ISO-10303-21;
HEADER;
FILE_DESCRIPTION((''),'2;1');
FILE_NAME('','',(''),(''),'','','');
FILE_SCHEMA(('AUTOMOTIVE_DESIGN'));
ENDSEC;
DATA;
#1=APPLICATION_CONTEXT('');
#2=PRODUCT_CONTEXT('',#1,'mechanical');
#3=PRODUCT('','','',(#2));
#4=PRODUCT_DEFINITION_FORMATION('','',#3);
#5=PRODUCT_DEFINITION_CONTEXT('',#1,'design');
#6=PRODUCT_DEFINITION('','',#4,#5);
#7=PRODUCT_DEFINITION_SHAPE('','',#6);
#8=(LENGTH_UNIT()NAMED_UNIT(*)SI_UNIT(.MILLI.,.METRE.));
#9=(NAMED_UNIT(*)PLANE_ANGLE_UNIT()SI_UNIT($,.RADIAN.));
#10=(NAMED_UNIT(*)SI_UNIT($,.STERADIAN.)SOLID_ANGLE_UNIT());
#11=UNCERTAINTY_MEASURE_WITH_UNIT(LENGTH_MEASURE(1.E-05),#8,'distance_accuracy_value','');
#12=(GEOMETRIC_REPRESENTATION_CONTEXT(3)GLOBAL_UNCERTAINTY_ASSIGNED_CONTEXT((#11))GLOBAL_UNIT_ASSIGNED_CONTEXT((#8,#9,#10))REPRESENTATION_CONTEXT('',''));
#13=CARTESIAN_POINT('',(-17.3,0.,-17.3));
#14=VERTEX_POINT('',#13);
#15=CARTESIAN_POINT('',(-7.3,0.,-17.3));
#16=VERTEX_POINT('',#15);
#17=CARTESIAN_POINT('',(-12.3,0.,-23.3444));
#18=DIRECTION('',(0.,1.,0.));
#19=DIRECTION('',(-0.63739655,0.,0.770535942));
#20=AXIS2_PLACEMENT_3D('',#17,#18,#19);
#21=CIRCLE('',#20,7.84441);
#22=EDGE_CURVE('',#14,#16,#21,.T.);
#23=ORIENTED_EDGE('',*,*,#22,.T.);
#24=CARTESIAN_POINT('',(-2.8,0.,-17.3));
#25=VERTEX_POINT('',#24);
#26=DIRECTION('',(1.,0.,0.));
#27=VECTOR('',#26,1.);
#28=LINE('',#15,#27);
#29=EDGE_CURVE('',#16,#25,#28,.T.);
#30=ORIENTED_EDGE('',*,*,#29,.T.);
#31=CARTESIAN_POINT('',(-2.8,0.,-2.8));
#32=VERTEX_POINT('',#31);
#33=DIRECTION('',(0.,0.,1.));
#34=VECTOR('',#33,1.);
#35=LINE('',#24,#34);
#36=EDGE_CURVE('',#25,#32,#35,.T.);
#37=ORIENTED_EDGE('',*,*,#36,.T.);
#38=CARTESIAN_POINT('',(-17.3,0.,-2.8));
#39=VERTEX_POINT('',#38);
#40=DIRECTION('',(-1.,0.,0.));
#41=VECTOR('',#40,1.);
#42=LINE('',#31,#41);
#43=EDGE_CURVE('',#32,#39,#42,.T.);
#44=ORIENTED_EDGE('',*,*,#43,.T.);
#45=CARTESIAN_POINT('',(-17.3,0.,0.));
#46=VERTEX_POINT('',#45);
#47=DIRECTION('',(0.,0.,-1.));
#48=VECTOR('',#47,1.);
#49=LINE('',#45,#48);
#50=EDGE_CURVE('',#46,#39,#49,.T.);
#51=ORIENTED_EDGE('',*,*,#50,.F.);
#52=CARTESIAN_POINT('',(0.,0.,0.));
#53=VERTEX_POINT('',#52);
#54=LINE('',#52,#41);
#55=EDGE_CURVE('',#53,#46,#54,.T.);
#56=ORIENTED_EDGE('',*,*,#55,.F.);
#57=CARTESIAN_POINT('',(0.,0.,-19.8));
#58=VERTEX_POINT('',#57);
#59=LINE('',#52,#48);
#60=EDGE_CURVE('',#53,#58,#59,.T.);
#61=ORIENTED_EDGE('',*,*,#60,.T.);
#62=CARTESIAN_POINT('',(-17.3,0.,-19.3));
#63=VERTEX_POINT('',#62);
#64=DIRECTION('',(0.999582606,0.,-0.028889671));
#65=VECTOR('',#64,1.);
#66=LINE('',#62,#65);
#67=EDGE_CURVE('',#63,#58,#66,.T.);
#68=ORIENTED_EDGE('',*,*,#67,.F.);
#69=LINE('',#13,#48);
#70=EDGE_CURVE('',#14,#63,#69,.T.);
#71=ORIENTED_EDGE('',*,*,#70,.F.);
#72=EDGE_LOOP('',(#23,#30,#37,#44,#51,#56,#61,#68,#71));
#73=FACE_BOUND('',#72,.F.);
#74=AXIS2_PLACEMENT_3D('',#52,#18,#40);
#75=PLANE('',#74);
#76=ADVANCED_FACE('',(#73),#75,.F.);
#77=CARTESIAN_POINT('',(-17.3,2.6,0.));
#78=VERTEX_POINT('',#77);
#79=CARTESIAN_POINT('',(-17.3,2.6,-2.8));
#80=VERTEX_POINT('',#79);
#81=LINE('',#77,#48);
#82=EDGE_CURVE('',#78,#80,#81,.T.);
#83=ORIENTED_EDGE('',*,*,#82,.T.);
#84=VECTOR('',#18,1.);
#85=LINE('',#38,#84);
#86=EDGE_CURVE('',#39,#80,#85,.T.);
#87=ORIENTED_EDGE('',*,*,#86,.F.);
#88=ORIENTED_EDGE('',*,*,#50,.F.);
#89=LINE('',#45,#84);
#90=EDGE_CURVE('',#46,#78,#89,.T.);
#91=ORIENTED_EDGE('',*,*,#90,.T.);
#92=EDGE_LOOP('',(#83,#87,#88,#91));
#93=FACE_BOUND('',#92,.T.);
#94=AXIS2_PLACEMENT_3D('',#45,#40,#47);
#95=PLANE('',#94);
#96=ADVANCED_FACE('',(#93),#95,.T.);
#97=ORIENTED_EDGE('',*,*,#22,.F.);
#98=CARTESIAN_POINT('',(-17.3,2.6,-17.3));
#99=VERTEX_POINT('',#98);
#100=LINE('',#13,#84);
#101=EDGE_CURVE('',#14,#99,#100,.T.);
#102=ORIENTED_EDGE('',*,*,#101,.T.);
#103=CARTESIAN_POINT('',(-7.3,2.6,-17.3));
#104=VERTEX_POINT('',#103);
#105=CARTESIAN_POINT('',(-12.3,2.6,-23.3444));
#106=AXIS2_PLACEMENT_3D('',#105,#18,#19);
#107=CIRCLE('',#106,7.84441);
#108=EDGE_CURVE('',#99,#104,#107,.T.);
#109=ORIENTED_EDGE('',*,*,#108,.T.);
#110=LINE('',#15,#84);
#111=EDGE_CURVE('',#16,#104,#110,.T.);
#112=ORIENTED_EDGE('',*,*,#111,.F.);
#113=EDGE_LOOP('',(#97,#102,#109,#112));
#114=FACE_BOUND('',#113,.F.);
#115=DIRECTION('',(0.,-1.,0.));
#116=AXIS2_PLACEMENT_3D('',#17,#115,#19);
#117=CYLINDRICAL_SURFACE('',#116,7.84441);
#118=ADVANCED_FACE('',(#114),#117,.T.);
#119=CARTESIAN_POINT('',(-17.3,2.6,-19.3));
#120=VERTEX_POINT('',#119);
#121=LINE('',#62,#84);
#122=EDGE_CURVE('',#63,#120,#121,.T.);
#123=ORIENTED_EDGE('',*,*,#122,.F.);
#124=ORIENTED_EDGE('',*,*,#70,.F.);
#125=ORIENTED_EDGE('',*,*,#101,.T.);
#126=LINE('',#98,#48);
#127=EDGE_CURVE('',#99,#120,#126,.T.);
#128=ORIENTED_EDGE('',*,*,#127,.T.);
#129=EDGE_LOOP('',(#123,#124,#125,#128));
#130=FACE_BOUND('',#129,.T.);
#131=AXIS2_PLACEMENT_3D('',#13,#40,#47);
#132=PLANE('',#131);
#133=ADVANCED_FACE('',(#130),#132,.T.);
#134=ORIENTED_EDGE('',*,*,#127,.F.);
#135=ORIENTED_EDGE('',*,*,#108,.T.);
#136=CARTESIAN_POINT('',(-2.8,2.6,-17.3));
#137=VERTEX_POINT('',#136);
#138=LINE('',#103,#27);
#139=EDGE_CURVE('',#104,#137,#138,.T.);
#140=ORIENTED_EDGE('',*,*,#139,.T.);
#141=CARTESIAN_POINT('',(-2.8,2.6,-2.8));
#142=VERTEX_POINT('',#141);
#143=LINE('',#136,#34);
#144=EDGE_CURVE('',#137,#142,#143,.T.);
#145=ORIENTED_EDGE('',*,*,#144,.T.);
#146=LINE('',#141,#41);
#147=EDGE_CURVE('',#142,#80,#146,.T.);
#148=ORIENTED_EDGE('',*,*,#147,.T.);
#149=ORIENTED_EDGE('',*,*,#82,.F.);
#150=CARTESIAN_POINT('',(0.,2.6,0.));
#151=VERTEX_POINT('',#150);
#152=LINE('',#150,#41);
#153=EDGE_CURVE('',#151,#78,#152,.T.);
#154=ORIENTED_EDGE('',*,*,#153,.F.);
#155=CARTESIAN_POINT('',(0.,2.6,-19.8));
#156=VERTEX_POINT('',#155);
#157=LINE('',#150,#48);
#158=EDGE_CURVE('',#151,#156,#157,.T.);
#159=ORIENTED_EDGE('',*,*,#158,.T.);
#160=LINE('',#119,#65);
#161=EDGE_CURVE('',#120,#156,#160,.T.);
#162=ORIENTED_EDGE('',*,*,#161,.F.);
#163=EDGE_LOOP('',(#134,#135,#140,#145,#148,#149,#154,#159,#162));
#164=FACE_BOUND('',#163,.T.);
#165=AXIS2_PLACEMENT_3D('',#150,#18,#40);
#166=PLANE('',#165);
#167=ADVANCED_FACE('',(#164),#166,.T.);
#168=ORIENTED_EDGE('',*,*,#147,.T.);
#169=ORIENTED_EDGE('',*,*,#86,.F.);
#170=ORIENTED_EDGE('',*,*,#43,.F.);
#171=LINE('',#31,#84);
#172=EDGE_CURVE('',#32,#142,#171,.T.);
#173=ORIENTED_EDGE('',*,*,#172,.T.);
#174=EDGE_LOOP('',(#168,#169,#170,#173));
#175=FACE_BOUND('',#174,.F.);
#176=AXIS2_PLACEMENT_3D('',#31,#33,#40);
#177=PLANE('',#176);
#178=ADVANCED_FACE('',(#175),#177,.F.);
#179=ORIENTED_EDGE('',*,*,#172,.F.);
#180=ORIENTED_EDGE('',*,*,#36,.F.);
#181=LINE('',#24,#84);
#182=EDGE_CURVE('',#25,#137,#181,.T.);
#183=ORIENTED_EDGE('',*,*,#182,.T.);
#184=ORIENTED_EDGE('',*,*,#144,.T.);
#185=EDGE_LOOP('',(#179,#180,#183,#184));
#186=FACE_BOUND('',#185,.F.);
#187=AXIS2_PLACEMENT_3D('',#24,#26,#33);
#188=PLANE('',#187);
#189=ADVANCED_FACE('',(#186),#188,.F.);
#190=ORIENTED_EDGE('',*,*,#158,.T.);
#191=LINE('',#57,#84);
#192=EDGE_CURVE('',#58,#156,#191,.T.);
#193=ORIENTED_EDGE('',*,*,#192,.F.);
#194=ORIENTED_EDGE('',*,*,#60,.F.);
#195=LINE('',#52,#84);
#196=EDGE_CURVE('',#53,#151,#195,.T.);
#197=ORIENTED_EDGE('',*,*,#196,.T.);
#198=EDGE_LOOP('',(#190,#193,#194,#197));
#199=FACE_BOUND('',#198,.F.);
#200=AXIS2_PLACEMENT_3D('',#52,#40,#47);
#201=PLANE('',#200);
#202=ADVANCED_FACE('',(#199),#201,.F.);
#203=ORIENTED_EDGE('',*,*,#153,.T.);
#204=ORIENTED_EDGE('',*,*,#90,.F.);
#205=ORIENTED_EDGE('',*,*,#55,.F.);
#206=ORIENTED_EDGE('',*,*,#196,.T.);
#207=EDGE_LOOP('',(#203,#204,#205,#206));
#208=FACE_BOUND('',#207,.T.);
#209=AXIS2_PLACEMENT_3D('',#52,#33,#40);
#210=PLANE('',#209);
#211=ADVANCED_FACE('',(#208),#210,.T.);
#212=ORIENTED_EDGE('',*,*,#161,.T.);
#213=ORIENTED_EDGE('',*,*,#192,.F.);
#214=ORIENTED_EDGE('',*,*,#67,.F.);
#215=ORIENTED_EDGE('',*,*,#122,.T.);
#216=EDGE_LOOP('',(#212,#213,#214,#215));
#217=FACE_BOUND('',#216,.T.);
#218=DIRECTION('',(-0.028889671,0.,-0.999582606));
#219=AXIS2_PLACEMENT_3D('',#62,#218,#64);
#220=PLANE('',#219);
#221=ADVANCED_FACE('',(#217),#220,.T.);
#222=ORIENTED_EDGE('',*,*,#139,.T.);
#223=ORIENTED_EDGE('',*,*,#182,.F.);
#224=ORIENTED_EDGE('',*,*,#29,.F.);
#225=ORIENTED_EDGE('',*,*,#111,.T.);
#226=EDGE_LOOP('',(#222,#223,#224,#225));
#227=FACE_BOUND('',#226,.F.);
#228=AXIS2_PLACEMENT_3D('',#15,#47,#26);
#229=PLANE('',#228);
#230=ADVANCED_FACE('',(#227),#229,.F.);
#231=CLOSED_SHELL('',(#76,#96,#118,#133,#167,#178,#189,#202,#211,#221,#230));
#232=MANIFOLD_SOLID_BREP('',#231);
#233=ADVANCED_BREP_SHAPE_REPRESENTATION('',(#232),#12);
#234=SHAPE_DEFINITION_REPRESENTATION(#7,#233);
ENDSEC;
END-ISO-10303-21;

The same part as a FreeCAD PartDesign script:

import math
import FreeCAD as App
import Part
import Sketcher

doc = App.newDocument("Part")
body = doc.addObject("PartDesign::Body", "Body")

sketch1 = body.newObject("Sketcher::SketchObject", "Sketch")
sketch1.AttachmentSupport = (doc.getObject("XZ_Plane"), [""])
sketch1.MapMode = "FlatFace"
sketch1.addGeometry(Part.LineSegment(App.Vector(-17.3, 0, 0), App.Vector(0, 0, 0)), False)
sketch1.addGeometry(Part.LineSegment(App.Vector(0, 0, 0), App.Vector(0, -19.8, 0)), False)
sketch1.addGeometry(Part.LineSegment(App.Vector(0, -19.8, 0), App.Vector(-17.3, -19.3, 0)), False)
sketch1.addGeometry(Part.LineSegment(App.Vector(-17.3, -19.3, 0), App.Vector(-17.3, -17.3, 0)), False)
sketch1.addGeometry(Part.ArcOfCircle(Part.Circle(App.Vector(-12.3, -23.3, 0), App.Vector(0, 0, 1), 7.8), math.radians(50), math.radians(130)), False)
sketch1.addGeometry(Part.LineSegment(App.Vector(-7.3, -17.3, 0), App.Vector(-2.8, -17.3, 0)), False)
sketch1.addGeometry(Part.LineSegment(App.Vector(-2.8, -17.3, 0), App.Vector(-2.8, -2.8, 0)), False)
sketch1.addGeometry(Part.LineSegment(App.Vector(-2.8, -2.8, 0), App.Vector(-17.3, -2.8, 0)), False)
sketch1.addGeometry(Part.LineSegment(App.Vector(-17.3, -2.8, 0), App.Vector(-17.3, 0, 0)), False)
sketch1.addConstraint(Sketcher.Constraint("Coincident", 0, 2, 1, 1))
sketch1.addConstraint(Sketcher.Constraint("Coincident", 1, 2, 2, 1))
sketch1.addConstraint(Sketcher.Constraint("Coincident", 2, 2, 3, 1))
sketch1.addConstraint(Sketcher.Constraint("Coincident", 3, 2, 4, 2))
sketch1.addConstraint(Sketcher.Constraint("Coincident", 4, 1, 5, 1))
sketch1.addConstraint(Sketcher.Constraint("Coincident", 5, 2, 6, 1))
sketch1.addConstraint(Sketcher.Constraint("Coincident", 6, 2, 7, 1))
sketch1.addConstraint(Sketcher.Constraint("Coincident", 7, 2, 8, 1))
sketch1.addConstraint(Sketcher.Constraint("Coincident", 8, 2, 0, 1))
sketch1.addConstraint(Sketcher.Constraint("Horizontal", 0))
sketch1.addConstraint(Sketcher.Constraint("Vertical", 1))
sketch1.addConstraint(Sketcher.Constraint("Vertical", 3))
sketch1.addConstraint(Sketcher.Constraint("Horizontal", 5))
sketch1.addConstraint(Sketcher.Constraint("Vertical", 6))
sketch1.addConstraint(Sketcher.Constraint("Horizontal", 7))
sketch1.addConstraint(Sketcher.Constraint("Vertical", 8))
sketch1.addConstraint(Sketcher.Constraint("Coincident", 0, 2, -1, 1))
sketch1.addConstraint(Sketcher.Constraint("Horizontal", 3, 2, 4, 1))
sketch1.addConstraint(Sketcher.Constraint("Vertical", 3, 2, 7, 2))
sketch1.addConstraint(Sketcher.Constraint("Equal", 7, 6))
sketch1.addConstraint(Sketcher.Constraint("DistanceY", 3, 1, 3, 2, 2.0))
sketch1.addConstraint(Sketcher.Constraint("DistanceX", 5, 1, 5, 2, 4.5))
sketch1.addConstraint(Sketcher.Constraint("DistanceX", 7, 2, 7, 1, 14.5))
sketch1.addConstraint(Sketcher.Constraint("DistanceY", 1, 2, 1, 1, 19.8))
sketch1.addConstraint(Sketcher.Constraint("DistanceY", 8, 1, 8, 2, 2.8))
sketch1.addConstraint(Sketcher.Constraint("DistanceX", 5, 2, -1, 1, 2.8))
sketch1.addConstraint(Sketcher.Constraint("Radius", 4, 7.8444))
pad1 = body.newObject("PartDesign::Pad", "Pad")
pad1.Profile = sketch1
pad1.Length = 2.6
pad1.Reversed = True

doc.recompute()
